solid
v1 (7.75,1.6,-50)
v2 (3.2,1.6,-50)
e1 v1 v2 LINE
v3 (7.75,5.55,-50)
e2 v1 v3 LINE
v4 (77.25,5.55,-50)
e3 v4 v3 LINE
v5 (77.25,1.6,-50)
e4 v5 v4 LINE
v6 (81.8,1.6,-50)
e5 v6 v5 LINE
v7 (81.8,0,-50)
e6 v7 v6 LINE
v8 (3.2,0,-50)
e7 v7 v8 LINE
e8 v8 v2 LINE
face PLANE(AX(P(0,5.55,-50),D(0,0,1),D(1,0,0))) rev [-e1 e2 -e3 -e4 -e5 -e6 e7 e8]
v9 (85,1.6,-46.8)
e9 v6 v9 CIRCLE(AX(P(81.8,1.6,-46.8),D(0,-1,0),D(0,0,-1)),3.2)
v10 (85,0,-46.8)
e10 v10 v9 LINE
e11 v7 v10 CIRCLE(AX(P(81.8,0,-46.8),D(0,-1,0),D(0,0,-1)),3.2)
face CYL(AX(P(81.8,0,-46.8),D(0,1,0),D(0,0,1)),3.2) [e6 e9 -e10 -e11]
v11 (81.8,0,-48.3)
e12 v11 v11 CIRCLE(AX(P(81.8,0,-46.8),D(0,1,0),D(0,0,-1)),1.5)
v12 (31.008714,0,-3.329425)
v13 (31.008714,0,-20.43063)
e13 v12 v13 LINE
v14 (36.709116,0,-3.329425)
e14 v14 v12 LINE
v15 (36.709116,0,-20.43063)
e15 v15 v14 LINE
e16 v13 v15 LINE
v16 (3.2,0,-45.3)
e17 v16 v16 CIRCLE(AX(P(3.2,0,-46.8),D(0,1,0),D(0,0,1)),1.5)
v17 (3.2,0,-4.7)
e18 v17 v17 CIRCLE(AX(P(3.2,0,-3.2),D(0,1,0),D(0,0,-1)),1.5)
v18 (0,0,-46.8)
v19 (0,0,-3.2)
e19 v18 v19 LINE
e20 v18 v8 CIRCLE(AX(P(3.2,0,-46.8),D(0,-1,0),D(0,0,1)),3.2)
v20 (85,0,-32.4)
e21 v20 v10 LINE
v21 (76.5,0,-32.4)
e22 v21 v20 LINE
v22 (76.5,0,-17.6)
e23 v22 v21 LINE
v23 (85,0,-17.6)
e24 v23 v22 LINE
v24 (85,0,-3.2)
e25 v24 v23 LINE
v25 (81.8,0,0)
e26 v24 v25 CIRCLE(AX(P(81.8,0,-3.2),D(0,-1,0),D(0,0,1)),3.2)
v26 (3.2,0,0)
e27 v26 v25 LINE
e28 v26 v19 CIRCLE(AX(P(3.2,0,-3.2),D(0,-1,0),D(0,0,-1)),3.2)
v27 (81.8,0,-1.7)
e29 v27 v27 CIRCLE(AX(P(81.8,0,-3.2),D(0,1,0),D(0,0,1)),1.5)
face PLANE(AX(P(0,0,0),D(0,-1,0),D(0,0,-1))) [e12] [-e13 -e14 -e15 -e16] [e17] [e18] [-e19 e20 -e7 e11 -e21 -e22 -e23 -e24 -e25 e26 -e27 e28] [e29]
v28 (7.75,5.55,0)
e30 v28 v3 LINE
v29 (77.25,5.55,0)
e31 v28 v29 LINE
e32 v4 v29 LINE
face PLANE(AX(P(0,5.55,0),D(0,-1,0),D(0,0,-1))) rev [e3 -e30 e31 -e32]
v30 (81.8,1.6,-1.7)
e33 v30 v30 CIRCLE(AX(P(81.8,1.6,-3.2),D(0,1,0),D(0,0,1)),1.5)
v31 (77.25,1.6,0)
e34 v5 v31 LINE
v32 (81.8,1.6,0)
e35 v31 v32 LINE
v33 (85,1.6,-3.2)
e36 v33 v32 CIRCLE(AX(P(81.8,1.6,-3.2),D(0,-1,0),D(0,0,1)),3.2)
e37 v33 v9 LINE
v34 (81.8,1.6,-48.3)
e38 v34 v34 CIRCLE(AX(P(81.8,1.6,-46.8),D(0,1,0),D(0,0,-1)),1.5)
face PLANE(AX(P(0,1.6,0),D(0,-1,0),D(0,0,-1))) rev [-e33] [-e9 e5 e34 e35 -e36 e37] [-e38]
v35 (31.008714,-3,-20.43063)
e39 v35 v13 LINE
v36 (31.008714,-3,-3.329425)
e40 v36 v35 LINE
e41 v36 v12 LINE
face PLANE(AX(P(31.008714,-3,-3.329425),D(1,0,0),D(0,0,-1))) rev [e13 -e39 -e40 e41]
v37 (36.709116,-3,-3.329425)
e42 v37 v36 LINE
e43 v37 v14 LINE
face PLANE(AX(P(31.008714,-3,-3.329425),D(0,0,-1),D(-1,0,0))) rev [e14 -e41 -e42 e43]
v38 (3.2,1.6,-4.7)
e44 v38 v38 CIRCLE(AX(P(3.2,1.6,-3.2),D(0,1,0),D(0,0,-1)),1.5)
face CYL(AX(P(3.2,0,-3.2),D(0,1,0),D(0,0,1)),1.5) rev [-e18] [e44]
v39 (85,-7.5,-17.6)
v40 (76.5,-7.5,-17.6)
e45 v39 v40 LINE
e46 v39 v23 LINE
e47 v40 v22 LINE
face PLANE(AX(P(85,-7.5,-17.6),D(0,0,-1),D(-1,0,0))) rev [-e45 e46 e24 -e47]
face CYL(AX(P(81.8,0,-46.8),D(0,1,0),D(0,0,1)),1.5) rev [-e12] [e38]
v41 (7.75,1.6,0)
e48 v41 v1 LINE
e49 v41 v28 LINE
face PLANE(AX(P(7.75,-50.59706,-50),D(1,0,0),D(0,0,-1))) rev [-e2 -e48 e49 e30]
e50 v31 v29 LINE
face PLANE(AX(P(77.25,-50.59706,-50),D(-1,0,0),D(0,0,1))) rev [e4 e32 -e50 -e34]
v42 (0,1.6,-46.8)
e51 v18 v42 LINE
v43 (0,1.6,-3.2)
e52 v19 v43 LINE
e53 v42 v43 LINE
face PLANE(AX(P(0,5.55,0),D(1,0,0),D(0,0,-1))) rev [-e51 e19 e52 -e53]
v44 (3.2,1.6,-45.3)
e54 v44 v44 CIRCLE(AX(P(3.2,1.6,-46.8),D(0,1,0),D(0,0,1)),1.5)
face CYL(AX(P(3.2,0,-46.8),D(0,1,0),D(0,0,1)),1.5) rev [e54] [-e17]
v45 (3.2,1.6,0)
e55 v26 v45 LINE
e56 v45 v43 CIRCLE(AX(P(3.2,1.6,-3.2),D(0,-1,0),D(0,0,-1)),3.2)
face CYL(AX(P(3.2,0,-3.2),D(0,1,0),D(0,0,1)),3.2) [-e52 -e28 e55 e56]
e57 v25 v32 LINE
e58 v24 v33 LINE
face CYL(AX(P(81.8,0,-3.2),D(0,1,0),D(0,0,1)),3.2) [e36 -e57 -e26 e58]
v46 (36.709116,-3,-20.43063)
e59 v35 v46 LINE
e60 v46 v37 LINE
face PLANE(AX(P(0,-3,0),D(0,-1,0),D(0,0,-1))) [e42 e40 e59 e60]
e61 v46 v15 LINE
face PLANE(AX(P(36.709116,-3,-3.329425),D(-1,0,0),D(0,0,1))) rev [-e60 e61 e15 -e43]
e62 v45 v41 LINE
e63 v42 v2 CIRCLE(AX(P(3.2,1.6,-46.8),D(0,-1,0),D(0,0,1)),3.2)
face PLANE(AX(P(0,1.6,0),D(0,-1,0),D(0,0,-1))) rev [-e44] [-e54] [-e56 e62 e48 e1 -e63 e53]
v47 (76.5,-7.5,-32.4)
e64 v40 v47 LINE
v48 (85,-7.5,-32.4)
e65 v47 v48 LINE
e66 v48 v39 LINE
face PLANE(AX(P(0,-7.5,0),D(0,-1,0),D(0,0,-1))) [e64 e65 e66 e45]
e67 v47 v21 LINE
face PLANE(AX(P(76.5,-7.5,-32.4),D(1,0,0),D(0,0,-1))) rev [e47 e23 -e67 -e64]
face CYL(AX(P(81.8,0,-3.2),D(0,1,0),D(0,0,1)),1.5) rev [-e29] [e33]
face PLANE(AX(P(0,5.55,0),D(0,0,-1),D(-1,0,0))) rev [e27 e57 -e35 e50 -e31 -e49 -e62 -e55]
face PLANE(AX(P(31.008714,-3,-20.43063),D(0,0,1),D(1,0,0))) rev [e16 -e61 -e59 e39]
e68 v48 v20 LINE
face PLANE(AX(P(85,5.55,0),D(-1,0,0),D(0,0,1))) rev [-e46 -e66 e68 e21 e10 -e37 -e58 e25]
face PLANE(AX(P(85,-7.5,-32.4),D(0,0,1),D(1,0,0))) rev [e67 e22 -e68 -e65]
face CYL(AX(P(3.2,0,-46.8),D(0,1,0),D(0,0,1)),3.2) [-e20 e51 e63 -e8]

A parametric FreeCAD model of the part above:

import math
import FreeCAD as App
import Part
import Sketcher
from FreeCAD import Vector


def add_polygon(sketch, points):
    """Adds a closed chain of lines whose ends are joined by coincident constraints."""
    first, n = sketch.GeometryCount, len(points)
    for a, b in zip(points, points[1:] + points[:1]):
        sketch.addGeometry(Part.LineSegment(App.Vector(*a, 0), App.Vector(*b, 0)), False)
    for i in range(n):
        sketch.addConstraint(Sketcher.Constraint("Coincident", first + i, 2, first + (i + 1) % n, 1))

doc = App.newDocument("Part")
params = doc.addObject("Spreadsheet::Sheet", "Params")
for row, (alias, value) in enumerate([
    ("sketch1_width", "85 mm"),
    ("sketch1_height", "50 mm"),
    ("pad1_length", "5.55 mm"),
    ("sketch2_height", "50 mm"),
    ("sketch2_width", "7.75 mm"),
    ("pocket1_length", "3.95 mm"),
    ("sketch3_diameter", "3 mm"),
    ("sketch3_radius", "3.2 mm"),
    ("pad2_length", "3 mm"),
    ("sketch5_width", "8.5 mm"),
    ("sketch5_height", "14.8 mm"),
    ("pad3_length", "7.5 mm"),
], start=1):
    params.set(f"A{row}", alias)
    params.set(f"B{row}", "=" + value)
    params.setAlias(f"B{row}", alias)

body = doc.addObject("PartDesign::Body", "Body")

# Sketch on XZ plane
sketch1 = body.newObject("Sketcher::SketchObject", "Sketch")
sketch1.AttachmentSupport = (doc.getObject("XZ_Plane"), [""])
sketch1.MapMode = "FlatFace"
add_polygon(sketch1, [(0, -50), (0, 0), (85, 0), (85, -50)])  # lines 0-3
sketch1.addConstraint([
    Sketcher.Constraint("Vertical", 0),
    Sketcher.Constraint("Horizontal", 1),
    Sketcher.Constraint("Vertical", 2),
    Sketcher.Constraint("Horizontal", 3),
    Sketcher.Constraint("Coincident", 0, 2, -1, 1),
    Sketcher.Constraint("DistanceX", 1, 1, 1, 2, 85.0),
    Sketcher.Constraint("DistanceY", 0, 1, 0, 2, 50.0),
])
sketch1.setExpression("Constraints[9]", "Params.sketch1_width")
sketch1.setExpression("Constraints[10]", "Params.sketch1_height")
pad1 = body.newObject("PartDesign::Pad", "Pad")
pad1.Profile = sketch1
pad1.setExpression("Length", "Params.pad1_length")
pad1.Reversed = True

# Sketch on XZ plane
sketch2 = body.newObject("Sketcher::SketchObject", "Sketch001")
sketch2.AttachmentSupport = (doc.getObject("XZ_Plane"), [""])
sketch2.MapMode = "FlatFace"
sketch2.AttachmentOffset = App.Placement(Vector(0, 0, -5.55), App.Rotation())
add_polygon(sketch2, [(0, -50), (0, 0), (8, 0), (8, -50)])  # lines 0-3
add_polygon(sketch2, [(77, -50), (77, 0), (85, 0), (85, -50)])  # lines 4-7
sketch2.addConstraint([
    Sketcher.Constraint("Vertical", 0),
    Sketcher.Constraint("Horizontal", 1),
    Sketcher.Constraint("Vertical", 2),
    Sketcher.Constraint("Horizontal", 3),
    Sketcher.Constraint("Vertical", 4),
    Sketcher.Constraint("Horizontal", 5),
    Sketcher.Constraint("Vertical", 6),
    Sketcher.Constraint("Horizontal", 7),
    Sketcher.Constraint("Coincident", 0, 2, -1, 1),
    Sketcher.Constraint("PointOnObject", 4, 2, -1),
    Sketcher.Constraint("Horizontal", 3, 2, 6, 2),
    Sketcher.Constraint("Equal", 3, 5),
    Sketcher.Constraint("DistanceY", 0, 1, 0, 2, 50.0),
    Sketcher.Constraint("DistanceX", -1, 1, 5, 2, 85.0),
    Sketcher.Constraint("DistanceX", 1, 1, 1, 2, 7.75),
])
sketch2.setExpression("Constraints[20]", "Params.sketch2_height")
sketch2.setExpression("Constraints[22]", "Params.sketch2_width")
pocket1 = body.newObject("PartDesign::Pocket", "Pocket")
pocket1.Profile = sketch2
pocket1.setExpression("Length", "Params.pocket1_length")
pocket1.Reversed = True

# Sketch on XZ plane
sketch3 = body.newObject("Sketcher::SketchObject", "Sketch002")
sketch3.AttachmentSupport = (doc.getObject("XZ_Plane"), [""])
sketch3.MapMode = "FlatFace"
sketch3.AttachmentOffset = App.Placement(Vector(0, 0, -1.6), App.Rotation())
sketch3.addGeometry([
    Part.Circle(Vector(3.2, -46.8, 0), Vector(0, 0, 1), 1.5),  # 0
    Part.Circle(Vector(3.2, -3.2, 0), Vector(0, 0, 1), 1.5),  # 1
    Part.Circle(Vector(81.8, -3.2, 0), Vector(0, 0, 1), 1.5),  # 2
    Part.Circle(Vector(81.8, -46.8, 0), Vector(0, 0, 1), 1.5),  # 3
    Part.LineSegment(Vector(0, -50, 0), Vector(0, -46.8, 0)),  # 4
    Part.ArcOfCircle(Part.Circle(Vector(3.2, -46.8, 0), Vector(0, 0, 1), 3.2), math.radians(180), math.radians(270)),  # 5
    Part.LineSegment(Vector(3.2, -50, 0), Vector(0, -50, 0)),  # 6
    Part.LineSegment(Vector(0, 0, 0), Vector(3.2, 0, 0)),  # 7
    Part.ArcOfCircle(Part.Circle(Vector(3.2, -3.2, 0), Vector(0, 0, 1), 3.2), math.radians(90), math.radians(180)),  # 8
    Part.LineSegment(Vector(0, -3.2, 0), Vector(0, 0, 0)),  # 9
    Part.LineSegment(Vector(85, 0, 0), Vector(85, -3.2, 0)),  # 10
    Part.ArcOfCircle(Part.Circle(Vector(81.8, -3.2, 0), Vector(0, 0, 1), 3.2), math.radians(0), math.radians(90)),  # 11
    Part.LineSegment(Vector(81.8, 0, 0), Vector(85, 0, 0)),  # 12
    Part.LineSegment(Vector(85, -50, 0), Vector(81.8, -50, 0)),  # 13
    Part.ArcOfCircle(Part.Circle(Vector(81.8, -46.8, 0), Vector(0, 0, 1), 3.2), math.radians(-90), math.radians(0)),  # 14
    Part.LineSegment(Vector(85, -46.8, 0), Vector(85, -50, 0)),  # 15
], False)
sketch3.addConstraint([
    Sketcher.Constraint("Tangent", 4, 2, 5, 1),
    Sketcher.Constraint("Tangent", 5, 2, 6, 1),
    Sketcher.Constraint("Coincident", 6, 2, 4, 1),
    Sketcher.Constraint("Tangent", 7, 2, 8, 1),
    Sketcher.Constraint("Tangent", 8, 2, 9, 1),
    Sketcher.Constraint("Coincident", 9, 2, 7, 1),
    Sketcher.Constraint("Tangent", 10, 2, 11, 1),
    Sketcher.Constraint("Tangent", 11, 2, 12, 1),
    Sketcher.Constraint("Coincident", 12, 2, 10, 1),
    Sketcher.Constraint("Tangent", 13, 2, 14, 1),
    Sketcher.Constraint("Tangent", 14, 2, 15, 1),
    Sketcher.Constraint("Coincident", 15, 2, 13, 1),
    Sketcher.Constraint("Vertical", 4),
    Sketcher.Constraint("Horizontal", 6),
    Sketcher.Constraint("Horizontal", 7),
    Sketcher.Constraint("Vertical", 9),
    Sketcher.Constraint("Vertical", 10),
    Sketcher.Constraint("Horizontal", 12),
    Sketcher.Constraint("Horizontal", 13),
    Sketcher.Constraint("Vertical", 15),
    Sketcher.Constraint("Coincident", 9, 2, -1, 1),
    Sketcher.Constraint("Coincident", 5, 3, 0, 3),
    Sketcher.Constraint("Coincident", 8, 3, 1, 3),
    Sketcher.Constraint("Coincident", 11, 3, 2, 3),
    Sketcher.Constraint("Coincident", 14, 3, 3, 3),
    Sketcher.Constraint("Equal", 0, 1),
    Sketcher.Constraint("Equal", 1, 2),
    Sketcher.Constraint("Equal", 2, 3),
    Sketcher.Constraint("Equal", 5, 8),
    Sketcher.Constraint("Equal", 8, 11),
    Sketcher.Constraint("Equal", 11, 14),
    Sketcher.Constraint("PointOnObject", 4, 2, -2),
    Sketcher.Constraint("PointOnObject", 11, 2, -1),
    Sketcher.Constraint("Horizontal", 0, 3, 3, 3),
    Sketcher.Constraint("Vertical", 2, 3, 3, 3),
    Sketcher.Constraint("Diameter", 0, 3.0),
    Sketcher.Constraint("Radius", 5, 3.2),
    Sketcher.Constraint("DistanceY", 5, 2, -1, 1, 50.0),
    Sketcher.Constraint("DistanceX", -1, 1, 10, 2, 85.0),
])
sketch3.setExpression("Constraints[35]", "Params.sketch3_diameter")
sketch3.setExpression("Constraints[36]", "Params.sketch3_radius")
pocket2 = body.newObject("PartDesign::Pocket", "Pocket001")
pocket2.Profile = sketch3
pocket2.Type = "ThroughAll"
pocket2.Reversed = True

# Sketch on XZ plane
sketch4 = body.newObject("Sketcher::SketchObject", "Sketch003")
sketch4.AttachmentSupport = (doc.getObject("XZ_Plane"), [""])
sketch4.MapMode = "FlatFace"
add_polygon(sketch4, [(31, -3), (31, -20), (37, -20), (37, -3)])  # lines 0-3
sketch4.addConstraint([
    Sketcher.Constraint("Vertical", 0),
    Sketcher.Constraint("Horizontal", 1),
    Sketcher.Constraint("Vertical", 2),
    Sketcher.Constraint("Horizontal", 3),
    Sketcher.Constraint("DistanceX", 1, 1, 1, 2, 5.700402),
    Sketcher.Constraint("DistanceY", 0, 2, 0, 1, 17.101205),
    Sketcher.Constraint("DistanceY", 0, 2, -1, 1, 20.43063),
    Sketcher.Constraint("DistanceX", -1, 1, 0, 2, 31.008714),
])
pad2 = body.newObject("PartDesign::Pad", "Pad001")
pad2.Profile = sketch4
pad2.setExpression("Length", "Params.pad2_length")

# Sketch on XZ plane
sketch5 = body.newObject("Sketcher::SketchObject", "Sketch004")
sketch5.AttachmentSupport = (doc.getObject("XZ_Plane"), [""])
sketch5.MapMode = "FlatFace"
add_polygon(sketch5, [(76, -18), (76, -32), (85, -32), (85, -18)])  # lines 0-3
sketch5.addConstraint([
    Sketcher.Constraint("Vertical", 0),
    Sketcher.Constraint("Horizontal", 1),
    Sketcher.Constraint("Vertical", 2),
    Sketcher.Constraint("Horizontal", 3),
    Sketcher.Constraint("DistanceX", 1, 1, 1, 2, 8.5),
    Sketcher.Constraint("DistanceY", 0, 2, 0, 1, 14.8),
    Sketcher.Constraint("DistanceX", -1, 1, 1, 2, 85.0),
    Sketcher.Constraint("DistanceY", 0, 2, -1, 1, 32.4),
])
sketch5.setExpression("Constraints[8]", "Params.sketch5_width")
sketch5.setExpression("Constraints[9]", "Params.sketch5_height")
pad3 = body.newObject("PartDesign::Pad", "Pad002")
pad3.Profile = sketch5
pad3.setExpression("Length", "Params.pad3_length")

doc.recompute()
